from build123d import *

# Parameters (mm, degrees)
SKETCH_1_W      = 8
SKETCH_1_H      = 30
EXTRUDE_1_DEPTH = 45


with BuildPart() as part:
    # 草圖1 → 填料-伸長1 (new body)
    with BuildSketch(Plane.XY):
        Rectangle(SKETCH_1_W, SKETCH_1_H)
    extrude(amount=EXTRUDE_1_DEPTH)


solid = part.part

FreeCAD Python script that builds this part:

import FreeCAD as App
import Part
import Sketcher

V = App.Vector

doc = App.newDocument("Part")
body = doc.addObject("PartDesign::Body", "Body")

# Sketch on XY plane
sketch1 = body.newObject("Sketcher::SketchObject", "Sketch")
sketch1.AttachmentSupport = (doc.getObject("XY_Plane"), [""])
sketch1.MapMode = "FlatFace"
sketch1.addGeometry(Part.LineSegment(V(-4, 15, 0), V(-4, -15, 0)), False)
sketch1.addGeometry(Part.LineSegment(V(-4, -15, 0), V(4, -15, 0)), False)
sketch1.addGeometry(Part.LineSegment(V(4, -15, 0), V(4, 15, 0)), False)
sketch1.addGeometry(Part.LineSegment(V(4, 15, 0), V(-4, 15, 0)), False)
sketch1.addConstraint(Sketcher.Constraint("Coincident", 0, 2, 1, 1))
sketch1.addConstraint(Sketcher.Constraint("Coincident", 1, 2, 2, 1))
sketch1.addConstraint(Sketcher.Constraint("Coincident", 2, 2, 3, 1))
sketch1.addConstraint(Sketcher.Constraint("Coincident", 3, 2, 0, 1))
sketch1.addConstraint(Sketcher.Constraint("Vertical", 0))
sketch1.addConstraint(Sketcher.Constraint("Horizontal", 1))
sketch1.addConstraint(Sketcher.Constraint("Vertical", 2))
sketch1.addConstraint(Sketcher.Constraint("Horizontal", 3))
sketch1.addConstraint(Sketcher.Constraint("Symmetric", 0, 2, 2, 2, -1, 1))
sketch1.addConstraint(Sketcher.Constraint("DistanceX", 1, 1, 1, 2, 8.0))
sketch1.addConstraint(Sketcher.Constraint("DistanceY", 0, 2, 0, 1, 30.0))
pad1 = body.newObject("PartDesign::Pad", "Pad")
pad1.Profile = sketch1
pad1.Length = 45

doc.recompute()
